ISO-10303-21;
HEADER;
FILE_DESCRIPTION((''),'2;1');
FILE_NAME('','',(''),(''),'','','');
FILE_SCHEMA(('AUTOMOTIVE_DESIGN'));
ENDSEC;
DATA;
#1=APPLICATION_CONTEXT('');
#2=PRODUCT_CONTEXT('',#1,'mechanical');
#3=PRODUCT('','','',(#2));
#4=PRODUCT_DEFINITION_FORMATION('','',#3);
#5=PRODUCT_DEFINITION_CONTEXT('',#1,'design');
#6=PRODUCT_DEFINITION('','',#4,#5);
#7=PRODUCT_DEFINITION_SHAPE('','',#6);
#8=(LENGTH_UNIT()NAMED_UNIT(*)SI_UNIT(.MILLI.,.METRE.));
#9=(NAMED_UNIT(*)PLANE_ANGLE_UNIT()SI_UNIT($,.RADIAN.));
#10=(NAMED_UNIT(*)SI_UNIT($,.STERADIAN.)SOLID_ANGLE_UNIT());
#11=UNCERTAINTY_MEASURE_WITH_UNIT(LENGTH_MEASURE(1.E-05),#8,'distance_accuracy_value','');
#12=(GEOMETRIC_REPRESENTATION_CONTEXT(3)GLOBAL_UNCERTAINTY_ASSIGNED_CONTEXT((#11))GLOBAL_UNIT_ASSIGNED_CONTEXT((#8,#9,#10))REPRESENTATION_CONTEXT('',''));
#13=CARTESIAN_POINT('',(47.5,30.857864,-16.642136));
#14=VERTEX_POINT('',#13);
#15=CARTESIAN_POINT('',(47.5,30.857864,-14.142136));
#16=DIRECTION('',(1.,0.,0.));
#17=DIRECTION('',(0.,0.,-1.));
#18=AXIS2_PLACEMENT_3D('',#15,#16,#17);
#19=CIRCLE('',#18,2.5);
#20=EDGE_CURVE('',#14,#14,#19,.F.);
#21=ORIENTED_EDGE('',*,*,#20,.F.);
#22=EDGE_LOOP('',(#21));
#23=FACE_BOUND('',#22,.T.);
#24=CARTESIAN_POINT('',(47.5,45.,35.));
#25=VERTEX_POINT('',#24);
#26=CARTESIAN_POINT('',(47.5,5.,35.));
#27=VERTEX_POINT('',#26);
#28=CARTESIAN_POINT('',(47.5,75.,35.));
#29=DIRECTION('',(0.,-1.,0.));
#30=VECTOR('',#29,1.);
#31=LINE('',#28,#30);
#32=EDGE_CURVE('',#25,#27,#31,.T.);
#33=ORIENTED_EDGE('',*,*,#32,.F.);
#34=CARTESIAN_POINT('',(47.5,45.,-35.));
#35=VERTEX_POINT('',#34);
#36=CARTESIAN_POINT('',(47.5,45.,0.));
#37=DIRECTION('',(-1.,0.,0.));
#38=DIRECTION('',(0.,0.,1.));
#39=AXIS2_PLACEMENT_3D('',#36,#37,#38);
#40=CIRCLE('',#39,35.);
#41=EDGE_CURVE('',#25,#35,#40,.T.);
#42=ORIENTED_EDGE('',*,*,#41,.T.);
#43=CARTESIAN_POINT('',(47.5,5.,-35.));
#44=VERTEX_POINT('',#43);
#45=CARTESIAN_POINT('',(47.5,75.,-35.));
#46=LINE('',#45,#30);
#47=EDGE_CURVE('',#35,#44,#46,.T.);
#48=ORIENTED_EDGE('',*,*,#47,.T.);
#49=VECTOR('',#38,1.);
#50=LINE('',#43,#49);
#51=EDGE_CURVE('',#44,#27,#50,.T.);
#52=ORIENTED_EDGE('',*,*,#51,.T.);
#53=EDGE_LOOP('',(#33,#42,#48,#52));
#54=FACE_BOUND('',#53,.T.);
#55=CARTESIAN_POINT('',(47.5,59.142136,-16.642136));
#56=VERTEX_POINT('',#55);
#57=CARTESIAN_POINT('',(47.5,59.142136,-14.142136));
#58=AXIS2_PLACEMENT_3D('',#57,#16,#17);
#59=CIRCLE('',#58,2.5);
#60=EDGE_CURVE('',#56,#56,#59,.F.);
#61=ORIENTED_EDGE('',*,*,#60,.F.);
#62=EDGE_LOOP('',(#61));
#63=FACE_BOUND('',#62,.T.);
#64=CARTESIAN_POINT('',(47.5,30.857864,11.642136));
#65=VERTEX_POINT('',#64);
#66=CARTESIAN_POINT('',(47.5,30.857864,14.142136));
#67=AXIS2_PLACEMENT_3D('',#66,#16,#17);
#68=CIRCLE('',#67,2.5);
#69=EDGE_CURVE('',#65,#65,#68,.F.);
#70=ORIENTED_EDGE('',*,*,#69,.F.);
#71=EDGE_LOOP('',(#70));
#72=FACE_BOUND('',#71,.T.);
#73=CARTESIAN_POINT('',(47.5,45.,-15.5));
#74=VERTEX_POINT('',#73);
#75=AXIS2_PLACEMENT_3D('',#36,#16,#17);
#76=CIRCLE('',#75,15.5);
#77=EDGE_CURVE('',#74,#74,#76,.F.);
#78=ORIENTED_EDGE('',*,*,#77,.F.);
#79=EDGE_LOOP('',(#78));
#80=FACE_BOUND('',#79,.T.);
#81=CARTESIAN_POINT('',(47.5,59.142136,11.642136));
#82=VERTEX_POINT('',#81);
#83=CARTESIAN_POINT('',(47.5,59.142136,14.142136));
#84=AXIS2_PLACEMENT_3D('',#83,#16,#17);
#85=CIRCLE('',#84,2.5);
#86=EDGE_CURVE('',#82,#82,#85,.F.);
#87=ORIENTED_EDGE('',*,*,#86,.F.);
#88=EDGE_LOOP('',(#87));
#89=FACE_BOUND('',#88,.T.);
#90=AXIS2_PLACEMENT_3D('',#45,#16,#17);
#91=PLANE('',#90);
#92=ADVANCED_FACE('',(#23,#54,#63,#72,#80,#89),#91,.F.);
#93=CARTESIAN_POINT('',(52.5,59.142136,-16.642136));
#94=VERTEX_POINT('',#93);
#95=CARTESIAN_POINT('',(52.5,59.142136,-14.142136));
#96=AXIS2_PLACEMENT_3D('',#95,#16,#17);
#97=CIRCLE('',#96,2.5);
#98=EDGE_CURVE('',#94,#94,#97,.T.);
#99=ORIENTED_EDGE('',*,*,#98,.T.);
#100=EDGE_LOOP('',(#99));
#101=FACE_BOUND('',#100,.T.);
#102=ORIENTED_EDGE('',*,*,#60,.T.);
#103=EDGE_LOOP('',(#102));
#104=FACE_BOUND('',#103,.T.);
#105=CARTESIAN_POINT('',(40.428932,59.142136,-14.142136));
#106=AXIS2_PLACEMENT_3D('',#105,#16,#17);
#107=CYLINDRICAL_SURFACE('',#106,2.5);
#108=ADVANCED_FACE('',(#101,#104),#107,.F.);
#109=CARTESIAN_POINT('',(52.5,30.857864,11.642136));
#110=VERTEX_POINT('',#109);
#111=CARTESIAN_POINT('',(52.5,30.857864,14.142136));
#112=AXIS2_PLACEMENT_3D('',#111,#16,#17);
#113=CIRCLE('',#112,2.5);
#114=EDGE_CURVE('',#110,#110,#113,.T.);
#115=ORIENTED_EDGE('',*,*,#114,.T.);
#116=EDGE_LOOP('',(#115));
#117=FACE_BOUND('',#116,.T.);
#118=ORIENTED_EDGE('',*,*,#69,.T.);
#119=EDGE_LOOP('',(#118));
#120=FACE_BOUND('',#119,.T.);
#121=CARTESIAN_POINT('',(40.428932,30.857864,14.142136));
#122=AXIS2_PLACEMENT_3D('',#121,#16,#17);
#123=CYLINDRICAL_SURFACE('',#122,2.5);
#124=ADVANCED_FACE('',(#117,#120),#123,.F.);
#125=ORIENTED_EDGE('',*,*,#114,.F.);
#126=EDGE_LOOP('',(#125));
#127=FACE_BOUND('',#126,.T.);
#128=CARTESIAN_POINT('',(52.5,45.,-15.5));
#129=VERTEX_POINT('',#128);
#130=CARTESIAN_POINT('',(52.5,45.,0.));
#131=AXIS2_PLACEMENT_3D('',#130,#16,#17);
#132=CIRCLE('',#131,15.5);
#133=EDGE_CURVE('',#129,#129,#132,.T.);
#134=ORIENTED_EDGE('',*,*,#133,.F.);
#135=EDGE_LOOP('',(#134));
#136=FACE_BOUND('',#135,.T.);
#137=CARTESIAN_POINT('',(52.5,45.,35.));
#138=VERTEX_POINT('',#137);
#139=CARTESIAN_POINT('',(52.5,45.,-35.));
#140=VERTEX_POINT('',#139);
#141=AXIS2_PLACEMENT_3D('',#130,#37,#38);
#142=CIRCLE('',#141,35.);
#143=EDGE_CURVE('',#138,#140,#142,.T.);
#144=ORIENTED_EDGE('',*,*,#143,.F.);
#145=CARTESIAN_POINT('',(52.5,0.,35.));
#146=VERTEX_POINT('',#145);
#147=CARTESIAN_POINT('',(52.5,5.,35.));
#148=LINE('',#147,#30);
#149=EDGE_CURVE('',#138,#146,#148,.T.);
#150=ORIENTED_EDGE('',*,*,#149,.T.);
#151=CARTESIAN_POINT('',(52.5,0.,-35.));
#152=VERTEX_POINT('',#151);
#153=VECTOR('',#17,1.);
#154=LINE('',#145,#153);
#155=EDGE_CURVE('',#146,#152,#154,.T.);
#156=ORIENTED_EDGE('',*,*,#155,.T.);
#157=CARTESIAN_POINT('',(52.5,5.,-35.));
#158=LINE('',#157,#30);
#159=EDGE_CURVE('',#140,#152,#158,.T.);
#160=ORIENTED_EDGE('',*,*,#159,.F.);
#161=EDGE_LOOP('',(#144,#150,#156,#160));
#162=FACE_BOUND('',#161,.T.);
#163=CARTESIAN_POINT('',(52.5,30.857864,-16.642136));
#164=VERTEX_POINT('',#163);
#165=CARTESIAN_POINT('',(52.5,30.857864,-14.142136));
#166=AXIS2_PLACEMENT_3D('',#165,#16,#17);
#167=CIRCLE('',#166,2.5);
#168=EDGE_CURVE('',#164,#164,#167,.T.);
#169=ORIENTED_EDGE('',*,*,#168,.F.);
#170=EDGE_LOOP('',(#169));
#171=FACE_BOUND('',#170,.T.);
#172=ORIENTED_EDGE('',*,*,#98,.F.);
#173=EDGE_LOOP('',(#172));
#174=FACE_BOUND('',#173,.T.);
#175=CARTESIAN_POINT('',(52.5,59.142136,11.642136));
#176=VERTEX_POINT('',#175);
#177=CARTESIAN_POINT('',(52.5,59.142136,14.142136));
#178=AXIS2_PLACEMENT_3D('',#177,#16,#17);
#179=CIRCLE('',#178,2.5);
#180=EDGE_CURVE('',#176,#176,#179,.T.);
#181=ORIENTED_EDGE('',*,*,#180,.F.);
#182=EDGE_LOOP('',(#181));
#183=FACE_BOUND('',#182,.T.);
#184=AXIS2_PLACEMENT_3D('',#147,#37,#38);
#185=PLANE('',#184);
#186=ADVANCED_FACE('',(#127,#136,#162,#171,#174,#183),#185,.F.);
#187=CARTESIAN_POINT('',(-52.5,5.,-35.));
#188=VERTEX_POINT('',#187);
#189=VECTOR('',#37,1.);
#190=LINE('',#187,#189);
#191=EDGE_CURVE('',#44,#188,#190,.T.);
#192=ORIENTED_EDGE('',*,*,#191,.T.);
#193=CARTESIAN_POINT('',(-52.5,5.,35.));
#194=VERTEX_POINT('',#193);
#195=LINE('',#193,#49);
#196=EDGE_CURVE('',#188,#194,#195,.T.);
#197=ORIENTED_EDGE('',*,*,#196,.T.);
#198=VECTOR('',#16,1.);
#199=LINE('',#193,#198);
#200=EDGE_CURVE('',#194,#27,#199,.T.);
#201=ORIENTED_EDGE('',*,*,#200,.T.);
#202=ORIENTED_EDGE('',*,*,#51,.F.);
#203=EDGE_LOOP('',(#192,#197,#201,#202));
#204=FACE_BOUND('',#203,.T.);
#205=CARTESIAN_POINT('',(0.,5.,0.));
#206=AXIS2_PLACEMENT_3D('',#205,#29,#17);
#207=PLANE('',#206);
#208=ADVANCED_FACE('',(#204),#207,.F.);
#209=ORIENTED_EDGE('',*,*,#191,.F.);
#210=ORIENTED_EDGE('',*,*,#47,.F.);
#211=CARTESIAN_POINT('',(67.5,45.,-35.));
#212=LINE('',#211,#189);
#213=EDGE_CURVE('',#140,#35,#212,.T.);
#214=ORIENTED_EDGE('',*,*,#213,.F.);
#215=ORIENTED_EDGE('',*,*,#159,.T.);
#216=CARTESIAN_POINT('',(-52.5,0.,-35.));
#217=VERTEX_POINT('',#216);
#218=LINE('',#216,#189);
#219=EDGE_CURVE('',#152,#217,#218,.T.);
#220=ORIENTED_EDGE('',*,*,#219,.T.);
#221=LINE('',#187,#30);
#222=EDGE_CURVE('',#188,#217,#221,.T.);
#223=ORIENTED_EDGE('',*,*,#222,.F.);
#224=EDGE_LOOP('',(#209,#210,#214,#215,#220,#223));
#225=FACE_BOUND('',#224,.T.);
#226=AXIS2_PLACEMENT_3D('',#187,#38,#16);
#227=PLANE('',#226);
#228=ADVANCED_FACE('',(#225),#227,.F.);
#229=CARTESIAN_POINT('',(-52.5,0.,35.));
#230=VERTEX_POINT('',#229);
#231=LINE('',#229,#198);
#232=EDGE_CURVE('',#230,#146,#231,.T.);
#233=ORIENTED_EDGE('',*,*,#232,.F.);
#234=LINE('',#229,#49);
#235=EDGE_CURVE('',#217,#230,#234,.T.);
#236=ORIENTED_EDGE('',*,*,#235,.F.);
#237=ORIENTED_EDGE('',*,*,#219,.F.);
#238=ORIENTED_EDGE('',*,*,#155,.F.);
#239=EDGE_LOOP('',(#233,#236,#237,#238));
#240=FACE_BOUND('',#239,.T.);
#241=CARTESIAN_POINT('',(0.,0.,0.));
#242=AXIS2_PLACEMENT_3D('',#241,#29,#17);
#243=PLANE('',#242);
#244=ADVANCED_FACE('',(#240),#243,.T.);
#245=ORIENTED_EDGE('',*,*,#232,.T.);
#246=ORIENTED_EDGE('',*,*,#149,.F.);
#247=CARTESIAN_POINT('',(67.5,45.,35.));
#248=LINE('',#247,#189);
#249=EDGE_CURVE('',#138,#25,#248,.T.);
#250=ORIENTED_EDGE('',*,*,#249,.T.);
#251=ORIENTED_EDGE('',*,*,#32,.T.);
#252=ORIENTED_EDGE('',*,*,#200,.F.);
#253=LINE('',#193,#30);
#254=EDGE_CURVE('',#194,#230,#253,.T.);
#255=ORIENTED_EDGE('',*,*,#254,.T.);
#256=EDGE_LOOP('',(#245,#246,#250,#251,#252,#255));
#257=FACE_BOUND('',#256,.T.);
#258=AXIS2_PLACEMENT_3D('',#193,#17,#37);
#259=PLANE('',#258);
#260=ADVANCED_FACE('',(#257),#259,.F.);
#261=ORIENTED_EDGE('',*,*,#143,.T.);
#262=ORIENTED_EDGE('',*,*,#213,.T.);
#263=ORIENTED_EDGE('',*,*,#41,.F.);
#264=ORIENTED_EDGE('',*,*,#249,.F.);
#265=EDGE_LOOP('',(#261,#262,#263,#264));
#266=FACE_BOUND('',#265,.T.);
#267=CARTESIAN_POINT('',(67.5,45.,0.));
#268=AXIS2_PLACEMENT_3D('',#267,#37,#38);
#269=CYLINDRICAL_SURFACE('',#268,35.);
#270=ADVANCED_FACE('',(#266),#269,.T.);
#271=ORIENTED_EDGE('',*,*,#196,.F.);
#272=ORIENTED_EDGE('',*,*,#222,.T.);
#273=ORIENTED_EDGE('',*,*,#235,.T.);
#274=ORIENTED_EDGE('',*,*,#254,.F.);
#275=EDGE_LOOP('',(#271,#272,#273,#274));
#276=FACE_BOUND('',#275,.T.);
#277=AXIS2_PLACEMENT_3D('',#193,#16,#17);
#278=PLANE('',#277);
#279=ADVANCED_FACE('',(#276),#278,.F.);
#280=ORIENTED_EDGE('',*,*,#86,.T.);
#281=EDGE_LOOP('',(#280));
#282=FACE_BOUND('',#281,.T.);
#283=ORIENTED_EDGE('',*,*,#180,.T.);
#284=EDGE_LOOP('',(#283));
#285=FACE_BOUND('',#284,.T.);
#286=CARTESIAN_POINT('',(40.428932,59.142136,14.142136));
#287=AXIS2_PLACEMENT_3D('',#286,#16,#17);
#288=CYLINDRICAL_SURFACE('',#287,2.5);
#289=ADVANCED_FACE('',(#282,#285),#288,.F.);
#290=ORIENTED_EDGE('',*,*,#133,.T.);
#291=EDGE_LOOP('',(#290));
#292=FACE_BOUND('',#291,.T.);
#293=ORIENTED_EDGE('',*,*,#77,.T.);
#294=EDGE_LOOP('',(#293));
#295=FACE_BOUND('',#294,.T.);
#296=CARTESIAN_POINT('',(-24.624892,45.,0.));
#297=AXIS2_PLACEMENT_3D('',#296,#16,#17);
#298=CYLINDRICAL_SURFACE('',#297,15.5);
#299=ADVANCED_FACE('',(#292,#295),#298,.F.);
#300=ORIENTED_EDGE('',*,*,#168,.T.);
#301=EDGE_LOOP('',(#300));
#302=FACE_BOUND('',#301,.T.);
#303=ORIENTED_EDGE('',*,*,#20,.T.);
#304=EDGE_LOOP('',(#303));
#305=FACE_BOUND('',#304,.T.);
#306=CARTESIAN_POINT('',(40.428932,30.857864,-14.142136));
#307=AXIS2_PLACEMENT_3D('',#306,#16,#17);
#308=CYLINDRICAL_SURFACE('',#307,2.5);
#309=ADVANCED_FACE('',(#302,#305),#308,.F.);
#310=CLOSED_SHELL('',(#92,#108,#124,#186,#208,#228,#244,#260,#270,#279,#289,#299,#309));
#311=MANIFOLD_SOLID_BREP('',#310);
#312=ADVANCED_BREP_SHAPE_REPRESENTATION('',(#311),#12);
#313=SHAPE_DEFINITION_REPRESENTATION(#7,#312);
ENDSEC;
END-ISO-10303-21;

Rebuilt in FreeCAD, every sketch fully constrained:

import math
import FreeCAD as App
import Part
import Sketcher


def add_polygon(sketch, points):
    """Adds a closed chain of lines whose ends are joined by coincident constraints."""
    first, n = sketch.GeometryCount, len(points)
    for a, b in zip(points, points[1:] + points[:1]):
        sketch.addGeometry(Part.LineSegment(App.Vector(*a, 0), App.Vector(*b, 0)), False)
    for i in range(n):
        sketch.addConstraint(Sketcher.Constraint("Coincident", first + i, 2, first + (i + 1) % n, 1))

doc = App.newDocument("Part")
body = doc.addObject("PartDesign::Body", "Body")

# Sketch on XZ plane
sketch1 = body.newObject("Sketcher::SketchObject", "Sketch")
sketch1.AttachmentSupport = (doc.getObject("XZ_Plane"), [""])
sketch1.MapMode = "FlatFace"
add_polygon(sketch1, [(-52, -35), (-52, 35), (52, 35), (52, -35)])  # lines 0-3
sketch1.addConstraint([
    Sketcher.Constraint("Vertical", 0),
    Sketcher.Constraint("Horizontal", 1),
    Sketcher.Constraint("Vertical", 2),
    Sketcher.Constraint("Horizontal", 3),
    Sketcher.Constraint("Symmetric", 0, 2, 2, 2, -1, 1),
    Sketcher.Constraint("DistanceX", 1, 1, 1, 2, 105.0),
    Sketcher.Constraint("DistanceY", 0, 1, 0, 2, 70.0),
])
pad1 = body.newObject("PartDesign::Pad", "Pad")
pad1.Profile = sketch1
pad1.Length = 5
pad1.Reversed = True

# Sketch on XZ plane
sketch2 = body.newObject("Sketcher::SketchObject", "Sketch001")
sketch2.AttachmentSupport = (doc.getObject("XZ_Plane"), [""])
sketch2.MapMode = "FlatFace"
sketch2.AttachmentOffset = App.Placement(App.Vector(0, 0, -5), App.Rotation())
add_polygon(sketch2, [(48, -35), (48, 35), (52, 35), (52, -35)])  # lines 0-3
sketch2.addConstraint([
    Sketcher.Constraint("Vertical", 0),
    Sketcher.Constraint("Horizontal", 1),
    Sketcher.Constraint("Vertical", 2),
    Sketcher.Constraint("Horizontal", 3),
    Sketcher.Constraint("DistanceX", 1, 1, 1, 2, 5.0),
    Sketcher.Constraint("DistanceY", 0, 1, 0, 2, 70.0),
    Sketcher.Constraint("DistanceY", -1, 1, 0, 2, 35.0),
    Sketcher.Constraint("DistanceX", -1, 1, 0, 2, 47.5),
])
pad2 = body.newObject("PartDesign::Pad", "Pad001")
pad2.Profile = sketch2
pad2.Length = 70
pad2.Reversed = True

# Sketch on YZ plane
sketch3 = body.newObject("Sketcher::SketchObject", "Sketch002")
sketch3.AttachmentSupport = (doc.getObject("YZ_Plane"), [""])
sketch3.MapMode = "FlatFace"
sketch3.AttachmentOffset = App.Placement(App.Vector(0, 0, 47.5), App.Rotation())
sketch3.addGeometry([
    Part.LineSegment(App.Vector(75, -18, 0), App.Vector(75, -35, 0)),  # 0
    Part.LineSegment(App.Vector(75, -35, 0), App.Vector(45, -35, 0)),  # 1
    Part.ArcOfCircle(Part.Circle(App.Vector(45, 0, 0), App.Vector(0, 0, 1), 35), math.radians(-90), math.radians(-31)),  # 2
    Part.LineSegment(App.Vector(75, 35, 0), App.Vector(75, 18, 0)),  # 3
    Part.ArcOfCircle(Part.Circle(App.Vector(45, 0, 0), App.Vector(0, 0, 1), 35), math.radians(31), math.radians(90)),  # 4
    Part.LineSegment(App.Vector(45, 35, 0), App.Vector(75, 35, 0)),  # 5
], False)
sketch3.addConstraint([
    Sketcher.Constraint("Coincident", 0, 2, 1, 1),
    Sketcher.Constraint("Tangent", 1, 2, 2, 1),
    Sketcher.Constraint("Coincident", 2, 2, 0, 1),
    Sketcher.Constraint("Coincident", 3, 2, 4, 1),
    Sketcher.Constraint("Tangent", 4, 2, 5, 1),
    Sketcher.Constraint("Coincident", 5, 2, 3, 1),
    Sketcher.Constraint("Vertical", 0),
    Sketcher.Constraint("Horizontal", 1),
    Sketcher.Constraint("Vertical", 3),
    Sketcher.Constraint("Horizontal", 5),
    Sketcher.Constraint("Coincident", 4, 3, 2, 3),
    Sketcher.Constraint("Equal", 2, 4),
    Sketcher.Constraint("Symmetric", 2, 2, 3, 2, -1),
    Sketcher.Constraint("Radius", 2, 35.0),
    Sketcher.Constraint("DistanceX", 1, 2, 1, 1, 30.0),
    Sketcher.Constraint("DistanceX", -1, 1, 2, 3, 45.0),
])
pocket1 = body.newObject("PartDesign::Pocket", "Pocket")
pocket1.Profile = sketch3
pocket1.Length = 20
pocket1.Reversed = True

# Sketch on YZ plane
sketch4 = body.newObject("Sketcher::SketchObject", "Sketch003")
sketch4.AttachmentSupport = (doc.getObject("YZ_Plane"), [""])
sketch4.MapMode = "FlatFace"
sketch4.AttachmentOffset = App.Placement(App.Vector(0, 0, 47.5), App.Rotation())
sketch4.addGeometry(Part.Circle(App.Vector(45, 0, 0), App.Vector(0, 0, 1), 26), False)
sketch4.addConstraint([
    Sketcher.Constraint("PointOnObject", 0, 3, -1),
    Sketcher.Constraint("Diameter", 0, 51.0),
    Sketcher.Constraint("DistanceX", -1, 1, 0, 3, 45.0),
])
pocket2 = body.newObject("PartDesign::Pocket", "Pocket001")
pocket2.Profile = sketch4
pocket2.Length = 10
pocket2.Reversed = True

# Sketch on YZ plane
sketch5 = body.newObject("Sketcher::SketchObject", "Sketch004")
sketch5.AttachmentSupport = (doc.getObject("YZ_Plane"), [""])
sketch5.MapMode = "FlatFace"
sketch5.AttachmentOffset = App.Placement(App.Vector(0, 0, 52.5), App.Rotation())
sketch5.addGeometry([
    Part.LineSegment(App.Vector(75, 18, 0), App.Vector(75, -18, 0)),
    Part.ArcOfCircle(Part.Circle(App.Vector(45, 0, 0), App.Vector(0, 0, 1), 35), math.radians(-31), math.radians(31)),
], False)
sketch5.addConstraint([
    Sketcher.Constraint("Coincident", 0, 1, 1, 2),
    Sketcher.Constraint("Coincident", 1, 1, 0, 2),
    Sketcher.Constraint("Vertical", 0),
    Sketcher.Constraint("PointOnObject", 1, 3, -1),
    Sketcher.Constraint("Radius", 1, 35.0),
    Sketcher.Constraint("DistanceX", -1, 1, 1, 3, 45.0),
    Sketcher.Constraint("DistanceX", -1, 1, 0, 1, 75.0),
])
pad3 = body.newObject("PartDesign::Pad", "Pad002")
pad3.Profile = sketch5
pad3.Length = 5
pad3.Reversed = True

# Sketch on YZ plane
sketch6 = body.newObject("Sketcher::SketchObject", "Sketch005")
sketch6.AttachmentSupport = (doc.getObject("YZ_Plane"), [""])
sketch6.MapMode = "FlatFace"
sketch6.AttachmentOffset = App.Placement(App.Vector(0, 0, 52.5), App.Rotation())
sketch6.addGeometry([
    Part.Circle(App.Vector(45, 0, 0), App.Vector(0, 0, 1), 26),
    Part.Circle(App.Vector(45, 0, 0), App.Vector(0, 0, 1), 16),
], False)
sketch6.addConstraint([
    Sketcher.Constraint("Coincident", 1, 3, 0, 3),
    Sketcher.Constraint("PointOnObject", 0, 3, -1),
    Sketcher.Constraint("Diameter", 0, 51.0),
    Sketcher.Constraint("Diameter", 1, 31.0),
    Sketcher.Constraint("DistanceX", -1, 1, 0, 3, 45.0),
])
pad4 = body.newObject("PartDesign::Pad", "Pad003")
pad4.Profile = sketch6
pad4.Length = 5
pad4.Reversed = True

# Sketch on YZ plane
sketch7 = body.newObject("Sketcher::SketchObject", "Sketch006")
sketch7.AttachmentSupport = (doc.getObject("YZ_Plane"), [""])
sketch7.MapMode = "FlatFace"
sketch7.AttachmentOffset = App.Placement(App.Vector(0, 0, 52.5), App.Rotation())
sketch7.addGeometry([
    Part.Circle(App.Vector(59.1, -14.1, 0), App.Vector(0, 0, 1), 2.5),
    Part.Circle(App.Vector(30.9, -14.1, 0), App.Vector(0, 0, 1), 2.5),
    Part.Circle(App.Vector(30.9, 14.1, 0), App.Vector(0, 0, 1), 2.5),
    Part.Circle(App.Vector(59.1, 14.1, 0), App.Vector(0, 0, 1), 2.5),
], False)
sketch7.addConstraint([
    Sketcher.Constraint("Equal", 0, 1),
    Sketcher.Constraint("Equal", 1, 2),
    Sketcher.Constraint("Equal", 2, 3),
    Sketcher.Constraint("Symmetric", 1, 3, 2, 3, -1),
    Sketcher.Constraint("Symmetric", 0, 3, 3, 3, -1),
    Sketcher.Constraint("Horizontal", 0, 3, 1, 3),
    Sketcher.Constraint("Diameter", 0, 5.0),
    Sketcher.Constraint("DistanceX", 1, 3, 0, 3, 28.284271),
    Sketcher.Constraint("DistanceY", 1, 3, 2, 3, 28.284271),
    Sketcher.Constraint("DistanceX", -1, 1, 0, 3, 59.142136),
])
pocket3 = body.newObject("PartDesign::Pocket", "Pocket002")
pocket3.Profile = sketch7
pocket3.Length = 5

doc.recompute()
